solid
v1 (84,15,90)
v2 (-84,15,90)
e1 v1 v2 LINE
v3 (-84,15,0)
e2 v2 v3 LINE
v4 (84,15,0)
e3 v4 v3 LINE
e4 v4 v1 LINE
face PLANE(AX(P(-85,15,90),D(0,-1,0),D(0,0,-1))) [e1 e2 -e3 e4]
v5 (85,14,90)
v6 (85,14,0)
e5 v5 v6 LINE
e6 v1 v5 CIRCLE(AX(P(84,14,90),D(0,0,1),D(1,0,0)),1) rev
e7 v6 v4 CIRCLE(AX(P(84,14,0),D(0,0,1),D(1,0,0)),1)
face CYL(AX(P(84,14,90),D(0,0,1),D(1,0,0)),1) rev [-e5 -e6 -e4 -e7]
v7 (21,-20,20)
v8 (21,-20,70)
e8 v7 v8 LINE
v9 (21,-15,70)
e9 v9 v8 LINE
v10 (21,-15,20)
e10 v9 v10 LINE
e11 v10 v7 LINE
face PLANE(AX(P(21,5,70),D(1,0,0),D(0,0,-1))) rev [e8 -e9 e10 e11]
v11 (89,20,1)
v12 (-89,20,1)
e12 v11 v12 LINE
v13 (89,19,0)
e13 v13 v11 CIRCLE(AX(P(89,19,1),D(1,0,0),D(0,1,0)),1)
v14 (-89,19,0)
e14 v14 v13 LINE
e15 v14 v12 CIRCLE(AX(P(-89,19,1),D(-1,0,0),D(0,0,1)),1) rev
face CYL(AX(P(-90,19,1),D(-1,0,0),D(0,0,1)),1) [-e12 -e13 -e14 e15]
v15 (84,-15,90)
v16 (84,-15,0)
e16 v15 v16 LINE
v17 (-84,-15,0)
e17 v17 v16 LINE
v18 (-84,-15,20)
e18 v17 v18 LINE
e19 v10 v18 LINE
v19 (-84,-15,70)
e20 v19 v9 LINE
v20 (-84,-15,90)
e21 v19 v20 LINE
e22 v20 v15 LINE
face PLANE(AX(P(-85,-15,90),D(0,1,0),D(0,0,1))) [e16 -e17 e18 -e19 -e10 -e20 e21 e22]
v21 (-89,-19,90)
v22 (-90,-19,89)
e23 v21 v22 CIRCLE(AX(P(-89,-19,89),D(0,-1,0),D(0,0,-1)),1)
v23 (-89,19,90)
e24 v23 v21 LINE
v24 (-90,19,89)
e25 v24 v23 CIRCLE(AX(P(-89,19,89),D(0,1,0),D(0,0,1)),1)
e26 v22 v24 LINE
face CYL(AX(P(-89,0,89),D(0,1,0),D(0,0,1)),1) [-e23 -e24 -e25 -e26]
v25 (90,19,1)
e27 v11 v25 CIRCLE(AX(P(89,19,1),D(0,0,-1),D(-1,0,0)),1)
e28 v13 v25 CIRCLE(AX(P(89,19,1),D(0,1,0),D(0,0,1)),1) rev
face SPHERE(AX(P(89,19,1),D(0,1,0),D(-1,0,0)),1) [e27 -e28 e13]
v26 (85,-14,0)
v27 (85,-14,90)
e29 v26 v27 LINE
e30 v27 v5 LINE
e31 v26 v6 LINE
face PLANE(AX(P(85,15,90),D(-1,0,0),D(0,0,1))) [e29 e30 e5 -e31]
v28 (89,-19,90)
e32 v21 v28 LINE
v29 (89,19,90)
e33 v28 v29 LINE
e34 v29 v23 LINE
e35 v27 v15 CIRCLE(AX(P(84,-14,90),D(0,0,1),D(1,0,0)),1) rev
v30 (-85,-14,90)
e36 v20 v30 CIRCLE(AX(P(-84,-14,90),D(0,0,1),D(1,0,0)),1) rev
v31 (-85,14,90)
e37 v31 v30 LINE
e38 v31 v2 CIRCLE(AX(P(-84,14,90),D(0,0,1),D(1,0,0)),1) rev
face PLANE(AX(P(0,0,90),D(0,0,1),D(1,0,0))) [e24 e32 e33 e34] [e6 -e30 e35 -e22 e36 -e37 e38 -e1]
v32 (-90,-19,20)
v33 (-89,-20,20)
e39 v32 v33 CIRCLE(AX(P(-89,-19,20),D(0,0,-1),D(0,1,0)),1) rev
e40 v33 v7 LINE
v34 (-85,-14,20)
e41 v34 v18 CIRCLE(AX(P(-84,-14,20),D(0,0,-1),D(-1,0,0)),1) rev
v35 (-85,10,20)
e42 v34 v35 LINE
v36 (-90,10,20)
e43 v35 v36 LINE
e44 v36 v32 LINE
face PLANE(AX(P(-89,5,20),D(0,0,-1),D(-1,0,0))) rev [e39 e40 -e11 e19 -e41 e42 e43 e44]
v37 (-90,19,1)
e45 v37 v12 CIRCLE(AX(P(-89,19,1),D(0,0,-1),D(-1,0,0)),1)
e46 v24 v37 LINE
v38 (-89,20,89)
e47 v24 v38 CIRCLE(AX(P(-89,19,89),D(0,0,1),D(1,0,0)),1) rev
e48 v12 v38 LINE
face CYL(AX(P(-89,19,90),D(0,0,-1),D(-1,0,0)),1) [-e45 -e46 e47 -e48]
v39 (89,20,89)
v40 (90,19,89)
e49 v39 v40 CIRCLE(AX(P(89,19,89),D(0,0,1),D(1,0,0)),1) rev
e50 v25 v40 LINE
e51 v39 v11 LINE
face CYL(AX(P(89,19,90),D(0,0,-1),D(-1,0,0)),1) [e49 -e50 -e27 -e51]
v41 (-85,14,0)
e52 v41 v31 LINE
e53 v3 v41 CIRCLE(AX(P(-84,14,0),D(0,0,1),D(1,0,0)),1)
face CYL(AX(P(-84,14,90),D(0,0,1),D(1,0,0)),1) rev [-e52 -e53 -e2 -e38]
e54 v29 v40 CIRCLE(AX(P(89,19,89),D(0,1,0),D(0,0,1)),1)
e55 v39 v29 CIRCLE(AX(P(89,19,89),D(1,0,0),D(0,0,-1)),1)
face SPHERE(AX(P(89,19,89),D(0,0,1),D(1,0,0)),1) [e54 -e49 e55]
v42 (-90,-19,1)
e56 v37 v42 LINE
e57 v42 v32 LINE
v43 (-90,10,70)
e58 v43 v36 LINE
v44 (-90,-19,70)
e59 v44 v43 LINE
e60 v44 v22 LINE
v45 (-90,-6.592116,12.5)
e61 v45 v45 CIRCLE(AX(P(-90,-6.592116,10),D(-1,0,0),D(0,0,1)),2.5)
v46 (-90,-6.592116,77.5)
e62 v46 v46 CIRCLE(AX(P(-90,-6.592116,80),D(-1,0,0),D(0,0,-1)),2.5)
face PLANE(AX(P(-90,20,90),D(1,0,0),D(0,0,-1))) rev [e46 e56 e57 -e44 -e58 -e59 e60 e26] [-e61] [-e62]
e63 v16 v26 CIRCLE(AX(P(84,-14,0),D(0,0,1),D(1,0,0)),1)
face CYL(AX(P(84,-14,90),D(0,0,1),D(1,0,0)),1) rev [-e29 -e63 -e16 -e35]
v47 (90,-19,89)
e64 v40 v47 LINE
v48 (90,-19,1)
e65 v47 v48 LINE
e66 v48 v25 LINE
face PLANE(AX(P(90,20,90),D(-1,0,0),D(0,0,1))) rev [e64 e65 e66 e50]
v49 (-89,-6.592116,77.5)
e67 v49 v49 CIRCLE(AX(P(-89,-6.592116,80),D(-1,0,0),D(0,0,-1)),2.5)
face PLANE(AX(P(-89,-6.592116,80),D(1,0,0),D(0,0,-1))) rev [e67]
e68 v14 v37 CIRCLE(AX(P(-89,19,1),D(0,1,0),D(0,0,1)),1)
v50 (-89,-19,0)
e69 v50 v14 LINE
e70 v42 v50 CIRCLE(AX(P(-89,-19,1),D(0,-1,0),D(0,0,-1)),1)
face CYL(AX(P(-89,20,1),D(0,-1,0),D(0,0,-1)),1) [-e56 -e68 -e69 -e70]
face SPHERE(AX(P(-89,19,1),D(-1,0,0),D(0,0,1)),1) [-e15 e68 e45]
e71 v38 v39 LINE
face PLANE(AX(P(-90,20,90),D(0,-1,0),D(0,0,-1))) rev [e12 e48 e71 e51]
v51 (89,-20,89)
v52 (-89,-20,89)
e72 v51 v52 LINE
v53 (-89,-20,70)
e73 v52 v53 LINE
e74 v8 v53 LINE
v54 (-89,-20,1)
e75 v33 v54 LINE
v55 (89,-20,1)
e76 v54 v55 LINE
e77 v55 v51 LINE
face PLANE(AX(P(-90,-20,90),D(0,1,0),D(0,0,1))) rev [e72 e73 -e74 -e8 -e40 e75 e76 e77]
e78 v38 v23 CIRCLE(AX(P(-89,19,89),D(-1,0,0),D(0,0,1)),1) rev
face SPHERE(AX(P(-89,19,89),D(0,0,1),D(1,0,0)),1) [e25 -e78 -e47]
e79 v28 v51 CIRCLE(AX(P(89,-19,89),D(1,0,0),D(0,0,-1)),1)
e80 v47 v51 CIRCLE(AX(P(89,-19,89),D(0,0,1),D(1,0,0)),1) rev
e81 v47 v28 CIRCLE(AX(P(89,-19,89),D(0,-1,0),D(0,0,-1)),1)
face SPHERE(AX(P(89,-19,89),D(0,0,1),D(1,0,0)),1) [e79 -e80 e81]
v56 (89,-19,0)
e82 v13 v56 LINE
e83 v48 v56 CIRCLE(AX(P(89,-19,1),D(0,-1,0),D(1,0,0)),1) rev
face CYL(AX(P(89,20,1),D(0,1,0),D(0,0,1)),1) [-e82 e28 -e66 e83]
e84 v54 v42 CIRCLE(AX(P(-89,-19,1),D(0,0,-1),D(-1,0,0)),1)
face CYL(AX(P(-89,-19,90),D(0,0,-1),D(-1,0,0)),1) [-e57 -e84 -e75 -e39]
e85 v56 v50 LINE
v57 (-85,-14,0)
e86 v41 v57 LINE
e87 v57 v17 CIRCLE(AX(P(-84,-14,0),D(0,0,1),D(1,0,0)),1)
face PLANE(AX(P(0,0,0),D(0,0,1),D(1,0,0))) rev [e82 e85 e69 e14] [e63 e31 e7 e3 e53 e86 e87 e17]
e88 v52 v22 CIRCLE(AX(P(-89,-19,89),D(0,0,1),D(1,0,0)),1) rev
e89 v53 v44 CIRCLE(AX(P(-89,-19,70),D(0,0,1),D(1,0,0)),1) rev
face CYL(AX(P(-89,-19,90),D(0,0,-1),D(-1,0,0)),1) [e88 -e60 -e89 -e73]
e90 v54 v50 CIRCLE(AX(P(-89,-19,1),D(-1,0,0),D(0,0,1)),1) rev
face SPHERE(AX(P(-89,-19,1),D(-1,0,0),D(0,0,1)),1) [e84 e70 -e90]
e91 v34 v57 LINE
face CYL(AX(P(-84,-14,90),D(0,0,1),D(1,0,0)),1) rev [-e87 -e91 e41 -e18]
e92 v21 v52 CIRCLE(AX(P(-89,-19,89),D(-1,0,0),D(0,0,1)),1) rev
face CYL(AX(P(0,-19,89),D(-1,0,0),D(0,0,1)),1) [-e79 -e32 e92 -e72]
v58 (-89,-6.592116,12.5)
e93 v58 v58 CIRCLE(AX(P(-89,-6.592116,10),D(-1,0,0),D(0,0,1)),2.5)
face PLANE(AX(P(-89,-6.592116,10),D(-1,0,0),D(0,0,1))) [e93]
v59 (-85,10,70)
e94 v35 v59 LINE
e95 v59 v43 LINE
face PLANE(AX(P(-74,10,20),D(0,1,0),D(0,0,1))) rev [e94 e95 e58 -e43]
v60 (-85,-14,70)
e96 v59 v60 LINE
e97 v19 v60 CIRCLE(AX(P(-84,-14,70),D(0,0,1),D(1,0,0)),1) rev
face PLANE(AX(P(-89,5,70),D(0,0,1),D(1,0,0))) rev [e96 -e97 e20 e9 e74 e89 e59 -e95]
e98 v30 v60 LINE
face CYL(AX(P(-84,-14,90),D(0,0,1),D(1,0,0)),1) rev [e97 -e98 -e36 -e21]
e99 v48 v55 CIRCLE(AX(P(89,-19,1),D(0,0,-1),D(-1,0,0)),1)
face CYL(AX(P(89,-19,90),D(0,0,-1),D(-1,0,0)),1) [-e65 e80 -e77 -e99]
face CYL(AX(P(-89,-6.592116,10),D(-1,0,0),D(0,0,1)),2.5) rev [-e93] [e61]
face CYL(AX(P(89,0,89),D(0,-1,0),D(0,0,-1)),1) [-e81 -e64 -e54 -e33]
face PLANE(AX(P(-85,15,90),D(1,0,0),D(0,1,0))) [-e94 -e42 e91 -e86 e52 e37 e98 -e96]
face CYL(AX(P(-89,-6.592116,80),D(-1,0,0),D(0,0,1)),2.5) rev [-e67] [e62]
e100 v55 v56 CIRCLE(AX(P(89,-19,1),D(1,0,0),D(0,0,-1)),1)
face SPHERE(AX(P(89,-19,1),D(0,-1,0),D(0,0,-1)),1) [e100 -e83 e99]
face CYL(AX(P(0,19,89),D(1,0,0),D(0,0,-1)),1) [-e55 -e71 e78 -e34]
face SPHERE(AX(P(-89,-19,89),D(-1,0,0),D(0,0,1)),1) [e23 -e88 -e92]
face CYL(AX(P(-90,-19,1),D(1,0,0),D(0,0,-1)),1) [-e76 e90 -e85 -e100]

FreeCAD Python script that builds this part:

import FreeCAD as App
import Part
import Sketcher

V = App.Vector
Q = App.Units.Quantity


def edges_at(feature, points):
    """Names of the edges that pass closest to the given points."""
    edges = feature.Shape.Edges
    near = lambda p: min(range(len(edges)), key=lambda i: edges[i].distToShape(Part.Vertex(*p))[0])
    return sorted({f"Edge{near(p) + 1}" for p in points})


def add_polygon(sketch, points):
    """Adds a closed chain of lines whose ends are joined by coincident constraints."""
    first, n = sketch.GeometryCount, len(points)
    for a, b in zip(points, points[1:] + points[:1]):
        sketch.addGeometry(Part.LineSegment(App.Vector(*a, 0), App.Vector(*b, 0)), False)
    for i in range(n):
        sketch.addConstraint(Sketcher.Constraint("Coincident", first + i, 2, first + (i + 1) % n, 1))

doc = App.newDocument("Part")
body = doc.addObject("PartDesign::Body", "Body")

sketch1 = body.newObject("Sketcher::SketchObject", "Sketch")
sketch1.AttachmentSupport = (doc.getObject("XY_Plane"), [""])
sketch1.MapMode = "FlatFace"
add_polygon(sketch1, [(-90, 20), (-90, -20), (90, -20), (90, 20)])
add_polygon(sketch1, [(85, -15), (-85, -15), (-85, 15), (85, 15)])
sketch1.addConstraint(Sketcher.Constraint("Vertical", 0))
sketch1.addConstraint(Sketcher.Constraint("Horizontal", 1))
sketch1.addConstraint(Sketcher.Constraint("Vertical", 2))
sketch1.addConstraint(Sketcher.Constraint("Horizontal", 3))
sketch1.addConstraint(Sketcher.Constraint("Horizontal", 4))
sketch1.addConstraint(Sketcher.Constraint("Vertical", 5))
sketch1.addConstraint(Sketcher.Constraint("Horizontal", 6))
sketch1.addConstraint(Sketcher.Constraint("Vertical", 7))
sketch1.addConstraint(Sketcher.Constraint("Symmetric", 0, 2, 2, 2, -1, 1))
sketch1.addConstraint(Sketcher.Constraint("Symmetric", 4, 2, 6, 2, -1, 1))
sketch1.addConstraint(Sketcher.Constraint("DistanceX", 1, 1, 1, 2, Q("180 mm")))
sketch1.addConstraint(Sketcher.Constraint("DistanceX", 4, 2, 4, 1, Q("170 mm")))
sketch1.addConstraint(Sketcher.Constraint("DistanceY", 0, 2, 0, 1, Q("40 mm")))
sketch1.addConstraint(Sketcher.Constraint("DistanceY", 5, 1, 5, 2, Q("30 mm")))
pad1 = body.newObject("PartDesign::Pad", "Pad")
pad1.Profile = sketch1
pad1.Length = 90
doc.recompute()

fillet = body.newObject("PartDesign::Fillet", "Fillet")
fillet.Base = (pad1, edges_at(pad1, [
    (-90, 0, 90),
    (85, -15, 45),
    (85, 15, 45),
    (-85, 15, 45),
    (-85, -15, 45),
    (0, -20, 90),
    (90, 0, 90),
    (0, -20, 0),
    (-90, 0, 0),
    (0, 20, 0),
    (90, 0, 0),
    (90, -20, 45),
    (-90, -20, 45),
    (-90, 20, 45),
    (90, 20, 45),
    (0, 20, 90),
]))
fillet.Radius = 1

sketch2 = body.newObject("Sketcher::SketchObject", "Sketch001")
sketch2.AttachmentSupport = (doc.getObject("XZ_Plane"), [""])
sketch2.MapMode = "FlatFace"
sketch2.AttachmentOffset = App.Placement(V(0, 0, 20), App.Rotation())
add_polygon(sketch2, [(-89, 70), (-89, 20), (21, 20), (21, 70)])
sketch2.addConstraint(Sketcher.Constraint("Vertical", 0))
sketch2.addConstraint(Sketcher.Constraint("Horizontal", 1))
sketch2.addConstraint(Sketcher.Constraint("Vertical", 2))
sketch2.addConstraint(Sketcher.Constraint("Horizontal", 3))
sketch2.addConstraint(Sketcher.Constraint("DistanceX", 1, 1, 1, 2, Q("110 mm")))
sketch2.addConstraint(Sketcher.Constraint("DistanceY", 0, 2, 0, 1, Q("50 mm")))
sketch2.addConstraint(Sketcher.Constraint("DistanceX", 0, 2, -1, 1, Q("89 mm")))
sketch2.addConstraint(Sketcher.Constraint("DistanceY", -1, 1, 0, 2, Q("20 mm")))
pocket1 = body.newObject("PartDesign::Pocket", "Pocket")
pocket1.Profile = sketch2
pocket1.Length = 25

sketch3 = body.newObject("Sketcher::SketchObject", "Sketch002")
sketch3.AttachmentSupport = (doc.getObject("YZ_Plane"), [""])
sketch3.MapMode = "FlatFace"
sketch3.AttachmentOffset = App.Placement(V(0, 0, -90), App.Rotation())
add_polygon(sketch3, [(10, 20), (-20, 20), (-20, 70), (10, 70)])
sketch3.addConstraint(Sketcher.Constraint("Horizontal", 0))
sketch3.addConstraint(Sketcher.Constraint("Vertical", 1))
sketch3.addConstraint(Sketcher.Constraint("Horizontal", 2))
sketch3.addConstraint(Sketcher.Constraint("Vertical", 3))
sketch3.addConstraint(Sketcher.Constraint("DistanceX", 0, 2, 0, 1, Q("30 mm")))
sketch3.addConstraint(Sketcher.Constraint("DistanceY", 1, 1, 1, 2, Q("50 mm")))
sketch3.addConstraint(Sketcher.Constraint("DistanceX", 0, 2, -1, 1, Q("20 mm")))
sketch3.addConstraint(Sketcher.Constraint("DistanceY", -1, 1, 0, 2, Q("20 mm")))
pocket2 = body.newObject("PartDesign::Pocket", "Pocket001")
pocket2.Profile = sketch3
pocket2.Length = 16
pocket2.Reversed = True

sketch4 = body.newObject("Sketcher::SketchObject", "Sketch003")
sketch4.AttachmentSupport = (doc.getObject("YZ_Plane"), [""])
sketch4.MapMode = "FlatFace"
sketch4.AttachmentOffset = App.Placement(V(0, 0, -90), App.Rotation())
sketch4.addGeometry(Part.Circle(V(-6.6, 10, 0), V(0, 0, 1), 2.5), False)
sketch4.addGeometry(Part.Circle(V(-6.6, 80, 0), V(0, 0, 1), 2.5), False)
sketch4.addConstraint(Sketcher.Constraint("Equal", 0, 1))
sketch4.addConstraint(Sketcher.Constraint("Vertical", 0, 3, 1, 3))
sketch4.addConstraint(Sketcher.Constraint("Diameter", 0, Q("5 mm")))
sketch4.addConstraint(Sketcher.Constraint("DistanceY", -1, 1, 0, 3, Q("10 mm")))
sketch4.addConstraint(Sketcher.Constraint("DistanceY", -1, 1, 1, 3, Q("80 mm")))
sketch4.addConstraint(Sketcher.Constraint("DistanceX", 0, 3, -1, 1, Q("6.592116 mm")))
pocket3 = body.newObject("PartDesign::Pocket", "Pocket002")
pocket3.Profile = sketch4
pocket3.Length = 1
pocket3.Reversed = True

doc.recompute()
